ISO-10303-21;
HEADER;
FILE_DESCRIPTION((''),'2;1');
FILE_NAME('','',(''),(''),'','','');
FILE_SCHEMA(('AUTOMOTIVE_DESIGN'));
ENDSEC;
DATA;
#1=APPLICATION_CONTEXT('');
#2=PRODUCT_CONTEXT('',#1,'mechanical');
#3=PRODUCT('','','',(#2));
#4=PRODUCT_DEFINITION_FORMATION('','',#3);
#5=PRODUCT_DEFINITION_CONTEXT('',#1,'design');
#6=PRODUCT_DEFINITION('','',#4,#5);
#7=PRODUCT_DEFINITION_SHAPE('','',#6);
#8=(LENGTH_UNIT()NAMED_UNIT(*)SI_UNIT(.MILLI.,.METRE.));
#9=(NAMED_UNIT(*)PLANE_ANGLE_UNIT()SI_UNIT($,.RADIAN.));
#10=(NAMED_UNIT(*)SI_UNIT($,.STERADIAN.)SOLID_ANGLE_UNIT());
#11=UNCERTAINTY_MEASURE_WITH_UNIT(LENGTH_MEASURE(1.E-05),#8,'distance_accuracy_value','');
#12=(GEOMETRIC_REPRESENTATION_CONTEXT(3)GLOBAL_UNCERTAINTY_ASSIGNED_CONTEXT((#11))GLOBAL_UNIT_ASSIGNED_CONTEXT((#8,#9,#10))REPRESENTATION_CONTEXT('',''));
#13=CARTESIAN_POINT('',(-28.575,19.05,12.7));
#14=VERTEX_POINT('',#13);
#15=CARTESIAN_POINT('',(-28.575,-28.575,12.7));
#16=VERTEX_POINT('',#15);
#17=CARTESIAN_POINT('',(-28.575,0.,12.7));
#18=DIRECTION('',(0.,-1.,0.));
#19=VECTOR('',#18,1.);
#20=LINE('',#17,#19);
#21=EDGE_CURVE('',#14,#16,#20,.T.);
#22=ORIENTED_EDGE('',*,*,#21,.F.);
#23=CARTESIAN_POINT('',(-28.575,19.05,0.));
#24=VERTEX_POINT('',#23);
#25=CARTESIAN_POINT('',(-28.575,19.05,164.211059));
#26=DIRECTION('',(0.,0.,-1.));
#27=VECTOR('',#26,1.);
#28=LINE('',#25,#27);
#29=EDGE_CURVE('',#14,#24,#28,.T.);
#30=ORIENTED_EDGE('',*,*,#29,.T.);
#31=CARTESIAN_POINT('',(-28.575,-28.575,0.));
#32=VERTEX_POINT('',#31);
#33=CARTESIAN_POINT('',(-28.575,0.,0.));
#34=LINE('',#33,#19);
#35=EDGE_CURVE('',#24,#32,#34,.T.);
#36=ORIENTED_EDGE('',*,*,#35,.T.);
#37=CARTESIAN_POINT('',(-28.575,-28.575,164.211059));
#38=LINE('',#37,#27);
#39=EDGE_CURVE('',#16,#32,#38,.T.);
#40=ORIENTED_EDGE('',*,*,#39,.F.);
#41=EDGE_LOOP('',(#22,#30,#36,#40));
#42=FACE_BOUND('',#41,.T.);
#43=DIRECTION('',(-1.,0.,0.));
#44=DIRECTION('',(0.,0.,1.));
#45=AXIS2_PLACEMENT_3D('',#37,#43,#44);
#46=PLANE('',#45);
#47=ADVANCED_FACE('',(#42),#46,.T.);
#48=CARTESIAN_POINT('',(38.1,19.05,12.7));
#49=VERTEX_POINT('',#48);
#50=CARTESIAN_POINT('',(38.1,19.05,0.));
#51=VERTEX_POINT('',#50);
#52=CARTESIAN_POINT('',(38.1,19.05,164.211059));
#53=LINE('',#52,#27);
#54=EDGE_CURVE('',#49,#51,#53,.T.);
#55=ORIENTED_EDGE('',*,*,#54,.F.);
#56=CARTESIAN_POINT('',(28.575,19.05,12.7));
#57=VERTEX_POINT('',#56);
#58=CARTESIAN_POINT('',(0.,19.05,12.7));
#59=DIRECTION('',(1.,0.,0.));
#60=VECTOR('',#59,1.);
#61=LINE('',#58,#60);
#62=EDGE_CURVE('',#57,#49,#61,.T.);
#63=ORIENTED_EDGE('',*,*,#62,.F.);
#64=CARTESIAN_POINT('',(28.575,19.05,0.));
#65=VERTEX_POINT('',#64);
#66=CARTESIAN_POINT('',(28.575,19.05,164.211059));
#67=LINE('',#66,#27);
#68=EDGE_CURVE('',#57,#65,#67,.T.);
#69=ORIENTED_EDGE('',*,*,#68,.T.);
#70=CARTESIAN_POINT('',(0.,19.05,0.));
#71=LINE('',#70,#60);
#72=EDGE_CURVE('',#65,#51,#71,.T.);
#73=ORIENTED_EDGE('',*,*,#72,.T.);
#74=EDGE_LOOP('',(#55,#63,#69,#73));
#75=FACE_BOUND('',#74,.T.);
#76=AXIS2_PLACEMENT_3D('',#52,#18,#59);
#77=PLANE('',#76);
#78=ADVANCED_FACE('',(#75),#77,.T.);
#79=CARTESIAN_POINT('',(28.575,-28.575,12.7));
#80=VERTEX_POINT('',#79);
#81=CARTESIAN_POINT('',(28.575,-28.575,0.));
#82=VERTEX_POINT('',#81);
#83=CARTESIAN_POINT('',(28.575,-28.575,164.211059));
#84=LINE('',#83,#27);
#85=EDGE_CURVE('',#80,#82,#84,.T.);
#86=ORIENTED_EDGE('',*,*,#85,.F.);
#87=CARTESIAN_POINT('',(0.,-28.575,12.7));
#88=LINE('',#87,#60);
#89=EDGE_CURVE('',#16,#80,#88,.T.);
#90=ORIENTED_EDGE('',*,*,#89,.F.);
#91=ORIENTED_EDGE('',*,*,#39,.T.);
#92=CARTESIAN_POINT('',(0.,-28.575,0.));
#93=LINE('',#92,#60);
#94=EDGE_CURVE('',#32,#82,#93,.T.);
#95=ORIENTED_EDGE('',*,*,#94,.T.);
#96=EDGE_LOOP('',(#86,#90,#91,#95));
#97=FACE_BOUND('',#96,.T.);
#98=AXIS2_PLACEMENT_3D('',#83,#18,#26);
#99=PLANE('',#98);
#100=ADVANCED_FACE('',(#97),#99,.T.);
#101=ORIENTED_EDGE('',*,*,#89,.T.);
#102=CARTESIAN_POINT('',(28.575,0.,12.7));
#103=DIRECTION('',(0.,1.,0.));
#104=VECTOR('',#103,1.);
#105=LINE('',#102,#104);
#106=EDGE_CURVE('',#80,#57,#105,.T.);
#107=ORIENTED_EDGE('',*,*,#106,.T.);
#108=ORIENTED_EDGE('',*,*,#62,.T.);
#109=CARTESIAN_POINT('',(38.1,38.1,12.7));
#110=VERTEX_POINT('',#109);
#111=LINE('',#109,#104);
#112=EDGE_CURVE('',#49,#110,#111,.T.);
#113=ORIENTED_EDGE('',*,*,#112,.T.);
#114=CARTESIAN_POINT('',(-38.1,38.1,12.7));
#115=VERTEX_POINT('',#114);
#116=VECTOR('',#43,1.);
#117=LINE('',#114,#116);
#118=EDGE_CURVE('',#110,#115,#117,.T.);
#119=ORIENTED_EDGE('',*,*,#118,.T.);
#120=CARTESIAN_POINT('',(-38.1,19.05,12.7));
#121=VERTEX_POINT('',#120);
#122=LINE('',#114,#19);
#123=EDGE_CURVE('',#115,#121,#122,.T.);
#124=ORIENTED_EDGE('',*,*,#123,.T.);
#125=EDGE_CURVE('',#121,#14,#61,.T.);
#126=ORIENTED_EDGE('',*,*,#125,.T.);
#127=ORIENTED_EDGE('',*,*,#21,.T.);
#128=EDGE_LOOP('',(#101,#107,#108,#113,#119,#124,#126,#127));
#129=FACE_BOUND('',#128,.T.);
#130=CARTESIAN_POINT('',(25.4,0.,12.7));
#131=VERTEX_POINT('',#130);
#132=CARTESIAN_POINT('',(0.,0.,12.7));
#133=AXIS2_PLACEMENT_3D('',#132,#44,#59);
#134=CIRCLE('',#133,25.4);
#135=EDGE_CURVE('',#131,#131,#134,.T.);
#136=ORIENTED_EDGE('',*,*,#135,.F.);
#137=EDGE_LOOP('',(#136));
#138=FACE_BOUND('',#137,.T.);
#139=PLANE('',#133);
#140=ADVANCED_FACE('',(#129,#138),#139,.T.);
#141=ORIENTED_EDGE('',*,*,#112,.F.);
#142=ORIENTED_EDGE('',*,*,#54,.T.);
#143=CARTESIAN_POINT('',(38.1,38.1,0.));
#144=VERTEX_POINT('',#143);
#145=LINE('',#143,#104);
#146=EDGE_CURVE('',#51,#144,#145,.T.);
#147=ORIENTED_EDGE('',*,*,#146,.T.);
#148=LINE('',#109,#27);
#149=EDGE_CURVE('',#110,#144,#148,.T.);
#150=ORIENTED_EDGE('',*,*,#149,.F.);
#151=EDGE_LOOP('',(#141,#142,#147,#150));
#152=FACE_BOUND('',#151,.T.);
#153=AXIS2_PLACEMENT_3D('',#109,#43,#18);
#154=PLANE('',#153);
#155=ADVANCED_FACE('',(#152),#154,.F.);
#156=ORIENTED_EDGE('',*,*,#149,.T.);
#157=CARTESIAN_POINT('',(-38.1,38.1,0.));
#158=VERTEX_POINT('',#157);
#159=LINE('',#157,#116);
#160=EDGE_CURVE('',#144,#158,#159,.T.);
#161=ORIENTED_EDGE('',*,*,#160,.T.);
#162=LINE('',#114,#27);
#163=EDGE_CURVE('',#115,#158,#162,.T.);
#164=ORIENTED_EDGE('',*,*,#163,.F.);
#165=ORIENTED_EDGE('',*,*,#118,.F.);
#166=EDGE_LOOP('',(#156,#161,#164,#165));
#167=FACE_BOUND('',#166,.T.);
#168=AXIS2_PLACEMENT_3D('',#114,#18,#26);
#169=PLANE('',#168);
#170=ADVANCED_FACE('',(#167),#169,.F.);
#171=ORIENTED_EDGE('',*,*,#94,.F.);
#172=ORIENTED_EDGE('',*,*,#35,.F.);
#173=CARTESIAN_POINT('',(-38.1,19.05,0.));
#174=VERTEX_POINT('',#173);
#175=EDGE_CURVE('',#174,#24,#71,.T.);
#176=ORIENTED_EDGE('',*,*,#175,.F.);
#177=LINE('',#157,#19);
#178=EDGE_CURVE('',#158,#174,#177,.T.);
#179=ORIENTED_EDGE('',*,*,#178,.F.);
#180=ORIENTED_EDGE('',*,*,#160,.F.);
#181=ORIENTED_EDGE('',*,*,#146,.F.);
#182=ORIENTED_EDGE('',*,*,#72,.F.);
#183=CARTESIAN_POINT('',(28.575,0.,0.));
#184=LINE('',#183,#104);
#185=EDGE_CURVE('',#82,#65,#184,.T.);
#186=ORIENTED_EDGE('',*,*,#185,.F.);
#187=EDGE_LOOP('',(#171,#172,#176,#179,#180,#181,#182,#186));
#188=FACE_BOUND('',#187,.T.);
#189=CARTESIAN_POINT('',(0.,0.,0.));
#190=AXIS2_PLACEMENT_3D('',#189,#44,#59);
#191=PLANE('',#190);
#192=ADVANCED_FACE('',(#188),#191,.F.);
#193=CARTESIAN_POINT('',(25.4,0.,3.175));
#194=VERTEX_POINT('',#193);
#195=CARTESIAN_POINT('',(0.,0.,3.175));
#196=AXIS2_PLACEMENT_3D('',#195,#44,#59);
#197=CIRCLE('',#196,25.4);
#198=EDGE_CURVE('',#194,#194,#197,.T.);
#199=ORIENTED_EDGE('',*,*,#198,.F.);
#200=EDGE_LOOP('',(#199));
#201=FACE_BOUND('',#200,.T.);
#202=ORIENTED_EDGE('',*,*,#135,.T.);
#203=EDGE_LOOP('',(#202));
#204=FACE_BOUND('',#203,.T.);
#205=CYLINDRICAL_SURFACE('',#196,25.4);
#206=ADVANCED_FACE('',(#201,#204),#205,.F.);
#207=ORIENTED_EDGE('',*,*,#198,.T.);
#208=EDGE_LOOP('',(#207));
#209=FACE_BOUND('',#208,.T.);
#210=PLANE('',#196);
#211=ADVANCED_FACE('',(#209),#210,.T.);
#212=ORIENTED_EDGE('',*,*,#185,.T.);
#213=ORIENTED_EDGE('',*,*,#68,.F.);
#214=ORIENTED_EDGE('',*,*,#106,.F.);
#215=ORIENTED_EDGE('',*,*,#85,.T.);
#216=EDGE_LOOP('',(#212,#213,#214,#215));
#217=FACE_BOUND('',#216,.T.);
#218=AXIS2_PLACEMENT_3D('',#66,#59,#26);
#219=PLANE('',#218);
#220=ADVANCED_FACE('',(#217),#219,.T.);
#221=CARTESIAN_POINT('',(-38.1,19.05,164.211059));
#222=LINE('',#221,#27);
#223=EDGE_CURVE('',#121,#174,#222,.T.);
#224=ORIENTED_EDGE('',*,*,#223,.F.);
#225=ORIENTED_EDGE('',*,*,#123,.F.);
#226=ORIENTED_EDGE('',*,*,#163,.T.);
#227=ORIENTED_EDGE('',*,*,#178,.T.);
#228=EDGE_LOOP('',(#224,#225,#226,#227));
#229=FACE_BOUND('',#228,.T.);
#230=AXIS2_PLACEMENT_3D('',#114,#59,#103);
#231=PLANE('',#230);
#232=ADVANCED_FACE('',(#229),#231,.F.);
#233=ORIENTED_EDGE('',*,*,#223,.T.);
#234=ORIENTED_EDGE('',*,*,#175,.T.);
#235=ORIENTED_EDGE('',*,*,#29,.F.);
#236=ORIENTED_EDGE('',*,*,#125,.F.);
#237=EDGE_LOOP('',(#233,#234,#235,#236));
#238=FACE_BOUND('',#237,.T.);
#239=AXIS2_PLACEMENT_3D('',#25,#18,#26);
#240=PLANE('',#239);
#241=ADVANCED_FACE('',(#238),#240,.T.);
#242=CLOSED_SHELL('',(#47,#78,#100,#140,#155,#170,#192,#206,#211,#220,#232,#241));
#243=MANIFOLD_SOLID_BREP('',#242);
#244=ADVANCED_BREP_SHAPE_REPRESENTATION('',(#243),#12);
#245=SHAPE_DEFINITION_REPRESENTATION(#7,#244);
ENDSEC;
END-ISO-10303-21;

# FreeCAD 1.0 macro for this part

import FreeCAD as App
import Part
import Sketcher
Q = App.Units.Quantity

doc = App.newDocument("Part")
body = doc.addObject("PartDesign::Body", "Body")

# Sketch on XY plane
sketch1 = body.newObject("Sketcher::SketchObject", "Sketch")
sketch1.AttachmentSupport = (doc.getObject("XY_Plane"), [""])
sketch1.MapMode = "FlatFace"
sketch1.addGeometry(Part.LineSegment(App.Vector(-38, 38, 0), App.Vector(-38, -38, 0)), False)
sketch1.addGeometry(Part.LineSegment(App.Vector(-38, -38, 0), App.Vector(38, -38, 0)), False)
sketch1.addGeometry(Part.LineSegment(App.Vector(38, -38, 0), App.Vector(38, 38, 0)), False)
sketch1.addGeometry(Part.LineSegment(App.Vector(38, 38, 0), App.Vector(-38, 38, 0)), False)
sketch1.addConstraint(Sketcher.Constraint("Coincident", 0, 2, 1, 1))
sketch1.addConstraint(Sketcher.Constraint("Coincident", 1, 2, 2, 1))
sketch1.addConstraint(Sketcher.Constraint("Coincident", 2, 2, 3, 1))
sketch1.addConstraint(Sketcher.Constraint("Coincident", 3, 2, 0, 1))
sketch1.addConstraint(Sketcher.Constraint("Vertical", 0))
sketch1.addConstraint(Sketcher.Constraint("Horizontal", 1))
sketch1.addConstraint(Sketcher.Constraint("Vertical", 2))
sketch1.addConstraint(Sketcher.Constraint("Horizontal", 3))
sketch1.addConstraint(Sketcher.Constraint("Symmetric", 0, 2, 2, 2, -1, 1))
sketch1.addConstraint(Sketcher.Constraint("Equal", 3, 0))
sketch1.addConstraint(Sketcher.Constraint("DistanceX", 1, 1, 1, 2, Q("3 in")))
pad1 = body.newObject("PartDesign::Pad", "Pad")
pad1.Profile = sketch1
pad1.Length = Q("0.5 in")

# Sketch on XY plane
sketch2 = body.newObject("Sketcher::SketchObject", "Sketch001")
sketch2.AttachmentSupport = (doc.getObject("XY_Plane"), [""])
sketch2.MapMode = "FlatFace"
sketch2.AttachmentOffset = App.Placement(App.Vector(0, 0, 0.5 * 25.4), App.Rotation())
sketch2.addGeometry(Part.Circle(App.Vector(0, 0, 0), App.Vector(0, 0, 1), 25), False)
sketch2.addConstraint(Sketcher.Constraint("Coincident", 0, 3, -1, 1))
sketch2.addConstraint(Sketcher.Constraint("Diameter", 0, Q("2 in")))
pocket1 = body.newObject("PartDesign::Pocket", "Pocket")
pocket1.Profile = sketch2
pocket1.Length = Q("0.375 in")

# Sketch on XY plane
sketch3 = body.newObject("Sketcher::SketchObject", "Sketch002")
sketch3.AttachmentSupport = (doc.getObject("XY_Plane"), [""])
sketch3.MapMode = "FlatFace"
sketch3.AttachmentOffset = App.Placement(App.Vector(0, 0, 0.5 * 25.4), App.Rotation())
sketch3.addGeometry(Part.LineSegment(App.Vector(239, 19, 0), App.Vector(29, 19, 0)), False)
sketch3.addGeometry(Part.LineSegment(App.Vector(29, 19, 0), App.Vector(29, -29, 0)), False)
sketch3.addGeometry(Part.LineSegment(App.Vector(29, -29, 0), App.Vector(-29, -29, 0)), False)
sketch3.addGeometry(Part.LineSegment(App.Vector(-29, -29, 0), App.Vector(-29, 19, 0)), False)
sketch3.addGeometry(Part.LineSegment(App.Vector(-29, 19, 0), App.Vector(-239, 19, 0)), False)
sketch3.addGeometry(Part.LineSegment(App.Vector(-239, 19, 0), App.Vector(-239, -382, 0)), False)
sketch3.addGeometry(Part.LineSegment(App.Vector(-239, -382, 0), App.Vector(239, -382, 0)), False)
sketch3.addGeometry(Part.LineSegment(App.Vector(239, -382, 0), App.Vector(239, 19, 0)), False)
sketch3.addConstraint(Sketcher.Constraint("Coincident", 0, 2, 1, 1))
sketch3.addConstraint(Sketcher.Constraint("Coincident", 1, 2, 2, 1))
sketch3.addConstraint(Sketcher.Constraint("Coincident", 2, 2, 3, 1))
sketch3.addConstraint(Sketcher.Constraint("Coincident", 3, 2, 4, 1))
sketch3.addConstraint(Sketcher.Constraint("Coincident", 4, 2, 5, 1))
sketch3.addConstraint(Sketcher.Constraint("Coincident", 5, 2, 6, 1))
sketch3.addConstraint(Sketcher.Constraint("Coincident", 6, 2, 7, 1))
sketch3.addConstraint(Sketcher.Constraint("Coincident", 7, 2, 0, 1))
sketch3.addConstraint(Sketcher.Constraint("Horizontal", 0))
sketch3.addConstraint(Sketcher.Constraint("Vertical", 1))
sketch3.addConstraint(Sketcher.Constraint("Horizontal", 2))
sketch3.addConstraint(Sketcher.Constraint("Vertical", 3))
sketch3.addConstraint(Sketcher.Constraint("Horizontal", 4))
sketch3.addConstraint(Sketcher.Constraint("Vertical", 5))
sketch3.addConstraint(Sketcher.Constraint("Horizontal", 6))
sketch3.addConstraint(Sketcher.Constraint("Vertical", 7))
sketch3.addConstraint(Sketcher.Constraint("Symmetric", 0, 2, 3, 2, -2))
sketch3.addConstraint(Sketcher.Constraint("Equal", 0, 4))
sketch3.addConstraint(Sketcher.Constraint("DistanceX", 2, 2, 2, 1, Q("2.25 in")))
sketch3.addConstraint(Sketcher.Constraint("DistanceY", 1, 2, 1, 1, Q("1.875 in")))
sketch3.addConstraint(Sketcher.Constraint("DistanceY", -1, 1, 0, 2, Q("0.75 in")))
sketch3.addConstraint(Sketcher.Constraint("DistanceX", 0, 2, 0, 1, 210.025))
sketch3.addConstraint(Sketcher.Constraint("DistanceY", 5, 2, 5, 1, 401.0))
pocket2 = body.newObject("PartDesign::Pocket", "Pocket001")
pocket2.Profile = sketch3
pocket2.Type = "ThroughAll"
pocket2.Midplane = True

doc.recompute()
